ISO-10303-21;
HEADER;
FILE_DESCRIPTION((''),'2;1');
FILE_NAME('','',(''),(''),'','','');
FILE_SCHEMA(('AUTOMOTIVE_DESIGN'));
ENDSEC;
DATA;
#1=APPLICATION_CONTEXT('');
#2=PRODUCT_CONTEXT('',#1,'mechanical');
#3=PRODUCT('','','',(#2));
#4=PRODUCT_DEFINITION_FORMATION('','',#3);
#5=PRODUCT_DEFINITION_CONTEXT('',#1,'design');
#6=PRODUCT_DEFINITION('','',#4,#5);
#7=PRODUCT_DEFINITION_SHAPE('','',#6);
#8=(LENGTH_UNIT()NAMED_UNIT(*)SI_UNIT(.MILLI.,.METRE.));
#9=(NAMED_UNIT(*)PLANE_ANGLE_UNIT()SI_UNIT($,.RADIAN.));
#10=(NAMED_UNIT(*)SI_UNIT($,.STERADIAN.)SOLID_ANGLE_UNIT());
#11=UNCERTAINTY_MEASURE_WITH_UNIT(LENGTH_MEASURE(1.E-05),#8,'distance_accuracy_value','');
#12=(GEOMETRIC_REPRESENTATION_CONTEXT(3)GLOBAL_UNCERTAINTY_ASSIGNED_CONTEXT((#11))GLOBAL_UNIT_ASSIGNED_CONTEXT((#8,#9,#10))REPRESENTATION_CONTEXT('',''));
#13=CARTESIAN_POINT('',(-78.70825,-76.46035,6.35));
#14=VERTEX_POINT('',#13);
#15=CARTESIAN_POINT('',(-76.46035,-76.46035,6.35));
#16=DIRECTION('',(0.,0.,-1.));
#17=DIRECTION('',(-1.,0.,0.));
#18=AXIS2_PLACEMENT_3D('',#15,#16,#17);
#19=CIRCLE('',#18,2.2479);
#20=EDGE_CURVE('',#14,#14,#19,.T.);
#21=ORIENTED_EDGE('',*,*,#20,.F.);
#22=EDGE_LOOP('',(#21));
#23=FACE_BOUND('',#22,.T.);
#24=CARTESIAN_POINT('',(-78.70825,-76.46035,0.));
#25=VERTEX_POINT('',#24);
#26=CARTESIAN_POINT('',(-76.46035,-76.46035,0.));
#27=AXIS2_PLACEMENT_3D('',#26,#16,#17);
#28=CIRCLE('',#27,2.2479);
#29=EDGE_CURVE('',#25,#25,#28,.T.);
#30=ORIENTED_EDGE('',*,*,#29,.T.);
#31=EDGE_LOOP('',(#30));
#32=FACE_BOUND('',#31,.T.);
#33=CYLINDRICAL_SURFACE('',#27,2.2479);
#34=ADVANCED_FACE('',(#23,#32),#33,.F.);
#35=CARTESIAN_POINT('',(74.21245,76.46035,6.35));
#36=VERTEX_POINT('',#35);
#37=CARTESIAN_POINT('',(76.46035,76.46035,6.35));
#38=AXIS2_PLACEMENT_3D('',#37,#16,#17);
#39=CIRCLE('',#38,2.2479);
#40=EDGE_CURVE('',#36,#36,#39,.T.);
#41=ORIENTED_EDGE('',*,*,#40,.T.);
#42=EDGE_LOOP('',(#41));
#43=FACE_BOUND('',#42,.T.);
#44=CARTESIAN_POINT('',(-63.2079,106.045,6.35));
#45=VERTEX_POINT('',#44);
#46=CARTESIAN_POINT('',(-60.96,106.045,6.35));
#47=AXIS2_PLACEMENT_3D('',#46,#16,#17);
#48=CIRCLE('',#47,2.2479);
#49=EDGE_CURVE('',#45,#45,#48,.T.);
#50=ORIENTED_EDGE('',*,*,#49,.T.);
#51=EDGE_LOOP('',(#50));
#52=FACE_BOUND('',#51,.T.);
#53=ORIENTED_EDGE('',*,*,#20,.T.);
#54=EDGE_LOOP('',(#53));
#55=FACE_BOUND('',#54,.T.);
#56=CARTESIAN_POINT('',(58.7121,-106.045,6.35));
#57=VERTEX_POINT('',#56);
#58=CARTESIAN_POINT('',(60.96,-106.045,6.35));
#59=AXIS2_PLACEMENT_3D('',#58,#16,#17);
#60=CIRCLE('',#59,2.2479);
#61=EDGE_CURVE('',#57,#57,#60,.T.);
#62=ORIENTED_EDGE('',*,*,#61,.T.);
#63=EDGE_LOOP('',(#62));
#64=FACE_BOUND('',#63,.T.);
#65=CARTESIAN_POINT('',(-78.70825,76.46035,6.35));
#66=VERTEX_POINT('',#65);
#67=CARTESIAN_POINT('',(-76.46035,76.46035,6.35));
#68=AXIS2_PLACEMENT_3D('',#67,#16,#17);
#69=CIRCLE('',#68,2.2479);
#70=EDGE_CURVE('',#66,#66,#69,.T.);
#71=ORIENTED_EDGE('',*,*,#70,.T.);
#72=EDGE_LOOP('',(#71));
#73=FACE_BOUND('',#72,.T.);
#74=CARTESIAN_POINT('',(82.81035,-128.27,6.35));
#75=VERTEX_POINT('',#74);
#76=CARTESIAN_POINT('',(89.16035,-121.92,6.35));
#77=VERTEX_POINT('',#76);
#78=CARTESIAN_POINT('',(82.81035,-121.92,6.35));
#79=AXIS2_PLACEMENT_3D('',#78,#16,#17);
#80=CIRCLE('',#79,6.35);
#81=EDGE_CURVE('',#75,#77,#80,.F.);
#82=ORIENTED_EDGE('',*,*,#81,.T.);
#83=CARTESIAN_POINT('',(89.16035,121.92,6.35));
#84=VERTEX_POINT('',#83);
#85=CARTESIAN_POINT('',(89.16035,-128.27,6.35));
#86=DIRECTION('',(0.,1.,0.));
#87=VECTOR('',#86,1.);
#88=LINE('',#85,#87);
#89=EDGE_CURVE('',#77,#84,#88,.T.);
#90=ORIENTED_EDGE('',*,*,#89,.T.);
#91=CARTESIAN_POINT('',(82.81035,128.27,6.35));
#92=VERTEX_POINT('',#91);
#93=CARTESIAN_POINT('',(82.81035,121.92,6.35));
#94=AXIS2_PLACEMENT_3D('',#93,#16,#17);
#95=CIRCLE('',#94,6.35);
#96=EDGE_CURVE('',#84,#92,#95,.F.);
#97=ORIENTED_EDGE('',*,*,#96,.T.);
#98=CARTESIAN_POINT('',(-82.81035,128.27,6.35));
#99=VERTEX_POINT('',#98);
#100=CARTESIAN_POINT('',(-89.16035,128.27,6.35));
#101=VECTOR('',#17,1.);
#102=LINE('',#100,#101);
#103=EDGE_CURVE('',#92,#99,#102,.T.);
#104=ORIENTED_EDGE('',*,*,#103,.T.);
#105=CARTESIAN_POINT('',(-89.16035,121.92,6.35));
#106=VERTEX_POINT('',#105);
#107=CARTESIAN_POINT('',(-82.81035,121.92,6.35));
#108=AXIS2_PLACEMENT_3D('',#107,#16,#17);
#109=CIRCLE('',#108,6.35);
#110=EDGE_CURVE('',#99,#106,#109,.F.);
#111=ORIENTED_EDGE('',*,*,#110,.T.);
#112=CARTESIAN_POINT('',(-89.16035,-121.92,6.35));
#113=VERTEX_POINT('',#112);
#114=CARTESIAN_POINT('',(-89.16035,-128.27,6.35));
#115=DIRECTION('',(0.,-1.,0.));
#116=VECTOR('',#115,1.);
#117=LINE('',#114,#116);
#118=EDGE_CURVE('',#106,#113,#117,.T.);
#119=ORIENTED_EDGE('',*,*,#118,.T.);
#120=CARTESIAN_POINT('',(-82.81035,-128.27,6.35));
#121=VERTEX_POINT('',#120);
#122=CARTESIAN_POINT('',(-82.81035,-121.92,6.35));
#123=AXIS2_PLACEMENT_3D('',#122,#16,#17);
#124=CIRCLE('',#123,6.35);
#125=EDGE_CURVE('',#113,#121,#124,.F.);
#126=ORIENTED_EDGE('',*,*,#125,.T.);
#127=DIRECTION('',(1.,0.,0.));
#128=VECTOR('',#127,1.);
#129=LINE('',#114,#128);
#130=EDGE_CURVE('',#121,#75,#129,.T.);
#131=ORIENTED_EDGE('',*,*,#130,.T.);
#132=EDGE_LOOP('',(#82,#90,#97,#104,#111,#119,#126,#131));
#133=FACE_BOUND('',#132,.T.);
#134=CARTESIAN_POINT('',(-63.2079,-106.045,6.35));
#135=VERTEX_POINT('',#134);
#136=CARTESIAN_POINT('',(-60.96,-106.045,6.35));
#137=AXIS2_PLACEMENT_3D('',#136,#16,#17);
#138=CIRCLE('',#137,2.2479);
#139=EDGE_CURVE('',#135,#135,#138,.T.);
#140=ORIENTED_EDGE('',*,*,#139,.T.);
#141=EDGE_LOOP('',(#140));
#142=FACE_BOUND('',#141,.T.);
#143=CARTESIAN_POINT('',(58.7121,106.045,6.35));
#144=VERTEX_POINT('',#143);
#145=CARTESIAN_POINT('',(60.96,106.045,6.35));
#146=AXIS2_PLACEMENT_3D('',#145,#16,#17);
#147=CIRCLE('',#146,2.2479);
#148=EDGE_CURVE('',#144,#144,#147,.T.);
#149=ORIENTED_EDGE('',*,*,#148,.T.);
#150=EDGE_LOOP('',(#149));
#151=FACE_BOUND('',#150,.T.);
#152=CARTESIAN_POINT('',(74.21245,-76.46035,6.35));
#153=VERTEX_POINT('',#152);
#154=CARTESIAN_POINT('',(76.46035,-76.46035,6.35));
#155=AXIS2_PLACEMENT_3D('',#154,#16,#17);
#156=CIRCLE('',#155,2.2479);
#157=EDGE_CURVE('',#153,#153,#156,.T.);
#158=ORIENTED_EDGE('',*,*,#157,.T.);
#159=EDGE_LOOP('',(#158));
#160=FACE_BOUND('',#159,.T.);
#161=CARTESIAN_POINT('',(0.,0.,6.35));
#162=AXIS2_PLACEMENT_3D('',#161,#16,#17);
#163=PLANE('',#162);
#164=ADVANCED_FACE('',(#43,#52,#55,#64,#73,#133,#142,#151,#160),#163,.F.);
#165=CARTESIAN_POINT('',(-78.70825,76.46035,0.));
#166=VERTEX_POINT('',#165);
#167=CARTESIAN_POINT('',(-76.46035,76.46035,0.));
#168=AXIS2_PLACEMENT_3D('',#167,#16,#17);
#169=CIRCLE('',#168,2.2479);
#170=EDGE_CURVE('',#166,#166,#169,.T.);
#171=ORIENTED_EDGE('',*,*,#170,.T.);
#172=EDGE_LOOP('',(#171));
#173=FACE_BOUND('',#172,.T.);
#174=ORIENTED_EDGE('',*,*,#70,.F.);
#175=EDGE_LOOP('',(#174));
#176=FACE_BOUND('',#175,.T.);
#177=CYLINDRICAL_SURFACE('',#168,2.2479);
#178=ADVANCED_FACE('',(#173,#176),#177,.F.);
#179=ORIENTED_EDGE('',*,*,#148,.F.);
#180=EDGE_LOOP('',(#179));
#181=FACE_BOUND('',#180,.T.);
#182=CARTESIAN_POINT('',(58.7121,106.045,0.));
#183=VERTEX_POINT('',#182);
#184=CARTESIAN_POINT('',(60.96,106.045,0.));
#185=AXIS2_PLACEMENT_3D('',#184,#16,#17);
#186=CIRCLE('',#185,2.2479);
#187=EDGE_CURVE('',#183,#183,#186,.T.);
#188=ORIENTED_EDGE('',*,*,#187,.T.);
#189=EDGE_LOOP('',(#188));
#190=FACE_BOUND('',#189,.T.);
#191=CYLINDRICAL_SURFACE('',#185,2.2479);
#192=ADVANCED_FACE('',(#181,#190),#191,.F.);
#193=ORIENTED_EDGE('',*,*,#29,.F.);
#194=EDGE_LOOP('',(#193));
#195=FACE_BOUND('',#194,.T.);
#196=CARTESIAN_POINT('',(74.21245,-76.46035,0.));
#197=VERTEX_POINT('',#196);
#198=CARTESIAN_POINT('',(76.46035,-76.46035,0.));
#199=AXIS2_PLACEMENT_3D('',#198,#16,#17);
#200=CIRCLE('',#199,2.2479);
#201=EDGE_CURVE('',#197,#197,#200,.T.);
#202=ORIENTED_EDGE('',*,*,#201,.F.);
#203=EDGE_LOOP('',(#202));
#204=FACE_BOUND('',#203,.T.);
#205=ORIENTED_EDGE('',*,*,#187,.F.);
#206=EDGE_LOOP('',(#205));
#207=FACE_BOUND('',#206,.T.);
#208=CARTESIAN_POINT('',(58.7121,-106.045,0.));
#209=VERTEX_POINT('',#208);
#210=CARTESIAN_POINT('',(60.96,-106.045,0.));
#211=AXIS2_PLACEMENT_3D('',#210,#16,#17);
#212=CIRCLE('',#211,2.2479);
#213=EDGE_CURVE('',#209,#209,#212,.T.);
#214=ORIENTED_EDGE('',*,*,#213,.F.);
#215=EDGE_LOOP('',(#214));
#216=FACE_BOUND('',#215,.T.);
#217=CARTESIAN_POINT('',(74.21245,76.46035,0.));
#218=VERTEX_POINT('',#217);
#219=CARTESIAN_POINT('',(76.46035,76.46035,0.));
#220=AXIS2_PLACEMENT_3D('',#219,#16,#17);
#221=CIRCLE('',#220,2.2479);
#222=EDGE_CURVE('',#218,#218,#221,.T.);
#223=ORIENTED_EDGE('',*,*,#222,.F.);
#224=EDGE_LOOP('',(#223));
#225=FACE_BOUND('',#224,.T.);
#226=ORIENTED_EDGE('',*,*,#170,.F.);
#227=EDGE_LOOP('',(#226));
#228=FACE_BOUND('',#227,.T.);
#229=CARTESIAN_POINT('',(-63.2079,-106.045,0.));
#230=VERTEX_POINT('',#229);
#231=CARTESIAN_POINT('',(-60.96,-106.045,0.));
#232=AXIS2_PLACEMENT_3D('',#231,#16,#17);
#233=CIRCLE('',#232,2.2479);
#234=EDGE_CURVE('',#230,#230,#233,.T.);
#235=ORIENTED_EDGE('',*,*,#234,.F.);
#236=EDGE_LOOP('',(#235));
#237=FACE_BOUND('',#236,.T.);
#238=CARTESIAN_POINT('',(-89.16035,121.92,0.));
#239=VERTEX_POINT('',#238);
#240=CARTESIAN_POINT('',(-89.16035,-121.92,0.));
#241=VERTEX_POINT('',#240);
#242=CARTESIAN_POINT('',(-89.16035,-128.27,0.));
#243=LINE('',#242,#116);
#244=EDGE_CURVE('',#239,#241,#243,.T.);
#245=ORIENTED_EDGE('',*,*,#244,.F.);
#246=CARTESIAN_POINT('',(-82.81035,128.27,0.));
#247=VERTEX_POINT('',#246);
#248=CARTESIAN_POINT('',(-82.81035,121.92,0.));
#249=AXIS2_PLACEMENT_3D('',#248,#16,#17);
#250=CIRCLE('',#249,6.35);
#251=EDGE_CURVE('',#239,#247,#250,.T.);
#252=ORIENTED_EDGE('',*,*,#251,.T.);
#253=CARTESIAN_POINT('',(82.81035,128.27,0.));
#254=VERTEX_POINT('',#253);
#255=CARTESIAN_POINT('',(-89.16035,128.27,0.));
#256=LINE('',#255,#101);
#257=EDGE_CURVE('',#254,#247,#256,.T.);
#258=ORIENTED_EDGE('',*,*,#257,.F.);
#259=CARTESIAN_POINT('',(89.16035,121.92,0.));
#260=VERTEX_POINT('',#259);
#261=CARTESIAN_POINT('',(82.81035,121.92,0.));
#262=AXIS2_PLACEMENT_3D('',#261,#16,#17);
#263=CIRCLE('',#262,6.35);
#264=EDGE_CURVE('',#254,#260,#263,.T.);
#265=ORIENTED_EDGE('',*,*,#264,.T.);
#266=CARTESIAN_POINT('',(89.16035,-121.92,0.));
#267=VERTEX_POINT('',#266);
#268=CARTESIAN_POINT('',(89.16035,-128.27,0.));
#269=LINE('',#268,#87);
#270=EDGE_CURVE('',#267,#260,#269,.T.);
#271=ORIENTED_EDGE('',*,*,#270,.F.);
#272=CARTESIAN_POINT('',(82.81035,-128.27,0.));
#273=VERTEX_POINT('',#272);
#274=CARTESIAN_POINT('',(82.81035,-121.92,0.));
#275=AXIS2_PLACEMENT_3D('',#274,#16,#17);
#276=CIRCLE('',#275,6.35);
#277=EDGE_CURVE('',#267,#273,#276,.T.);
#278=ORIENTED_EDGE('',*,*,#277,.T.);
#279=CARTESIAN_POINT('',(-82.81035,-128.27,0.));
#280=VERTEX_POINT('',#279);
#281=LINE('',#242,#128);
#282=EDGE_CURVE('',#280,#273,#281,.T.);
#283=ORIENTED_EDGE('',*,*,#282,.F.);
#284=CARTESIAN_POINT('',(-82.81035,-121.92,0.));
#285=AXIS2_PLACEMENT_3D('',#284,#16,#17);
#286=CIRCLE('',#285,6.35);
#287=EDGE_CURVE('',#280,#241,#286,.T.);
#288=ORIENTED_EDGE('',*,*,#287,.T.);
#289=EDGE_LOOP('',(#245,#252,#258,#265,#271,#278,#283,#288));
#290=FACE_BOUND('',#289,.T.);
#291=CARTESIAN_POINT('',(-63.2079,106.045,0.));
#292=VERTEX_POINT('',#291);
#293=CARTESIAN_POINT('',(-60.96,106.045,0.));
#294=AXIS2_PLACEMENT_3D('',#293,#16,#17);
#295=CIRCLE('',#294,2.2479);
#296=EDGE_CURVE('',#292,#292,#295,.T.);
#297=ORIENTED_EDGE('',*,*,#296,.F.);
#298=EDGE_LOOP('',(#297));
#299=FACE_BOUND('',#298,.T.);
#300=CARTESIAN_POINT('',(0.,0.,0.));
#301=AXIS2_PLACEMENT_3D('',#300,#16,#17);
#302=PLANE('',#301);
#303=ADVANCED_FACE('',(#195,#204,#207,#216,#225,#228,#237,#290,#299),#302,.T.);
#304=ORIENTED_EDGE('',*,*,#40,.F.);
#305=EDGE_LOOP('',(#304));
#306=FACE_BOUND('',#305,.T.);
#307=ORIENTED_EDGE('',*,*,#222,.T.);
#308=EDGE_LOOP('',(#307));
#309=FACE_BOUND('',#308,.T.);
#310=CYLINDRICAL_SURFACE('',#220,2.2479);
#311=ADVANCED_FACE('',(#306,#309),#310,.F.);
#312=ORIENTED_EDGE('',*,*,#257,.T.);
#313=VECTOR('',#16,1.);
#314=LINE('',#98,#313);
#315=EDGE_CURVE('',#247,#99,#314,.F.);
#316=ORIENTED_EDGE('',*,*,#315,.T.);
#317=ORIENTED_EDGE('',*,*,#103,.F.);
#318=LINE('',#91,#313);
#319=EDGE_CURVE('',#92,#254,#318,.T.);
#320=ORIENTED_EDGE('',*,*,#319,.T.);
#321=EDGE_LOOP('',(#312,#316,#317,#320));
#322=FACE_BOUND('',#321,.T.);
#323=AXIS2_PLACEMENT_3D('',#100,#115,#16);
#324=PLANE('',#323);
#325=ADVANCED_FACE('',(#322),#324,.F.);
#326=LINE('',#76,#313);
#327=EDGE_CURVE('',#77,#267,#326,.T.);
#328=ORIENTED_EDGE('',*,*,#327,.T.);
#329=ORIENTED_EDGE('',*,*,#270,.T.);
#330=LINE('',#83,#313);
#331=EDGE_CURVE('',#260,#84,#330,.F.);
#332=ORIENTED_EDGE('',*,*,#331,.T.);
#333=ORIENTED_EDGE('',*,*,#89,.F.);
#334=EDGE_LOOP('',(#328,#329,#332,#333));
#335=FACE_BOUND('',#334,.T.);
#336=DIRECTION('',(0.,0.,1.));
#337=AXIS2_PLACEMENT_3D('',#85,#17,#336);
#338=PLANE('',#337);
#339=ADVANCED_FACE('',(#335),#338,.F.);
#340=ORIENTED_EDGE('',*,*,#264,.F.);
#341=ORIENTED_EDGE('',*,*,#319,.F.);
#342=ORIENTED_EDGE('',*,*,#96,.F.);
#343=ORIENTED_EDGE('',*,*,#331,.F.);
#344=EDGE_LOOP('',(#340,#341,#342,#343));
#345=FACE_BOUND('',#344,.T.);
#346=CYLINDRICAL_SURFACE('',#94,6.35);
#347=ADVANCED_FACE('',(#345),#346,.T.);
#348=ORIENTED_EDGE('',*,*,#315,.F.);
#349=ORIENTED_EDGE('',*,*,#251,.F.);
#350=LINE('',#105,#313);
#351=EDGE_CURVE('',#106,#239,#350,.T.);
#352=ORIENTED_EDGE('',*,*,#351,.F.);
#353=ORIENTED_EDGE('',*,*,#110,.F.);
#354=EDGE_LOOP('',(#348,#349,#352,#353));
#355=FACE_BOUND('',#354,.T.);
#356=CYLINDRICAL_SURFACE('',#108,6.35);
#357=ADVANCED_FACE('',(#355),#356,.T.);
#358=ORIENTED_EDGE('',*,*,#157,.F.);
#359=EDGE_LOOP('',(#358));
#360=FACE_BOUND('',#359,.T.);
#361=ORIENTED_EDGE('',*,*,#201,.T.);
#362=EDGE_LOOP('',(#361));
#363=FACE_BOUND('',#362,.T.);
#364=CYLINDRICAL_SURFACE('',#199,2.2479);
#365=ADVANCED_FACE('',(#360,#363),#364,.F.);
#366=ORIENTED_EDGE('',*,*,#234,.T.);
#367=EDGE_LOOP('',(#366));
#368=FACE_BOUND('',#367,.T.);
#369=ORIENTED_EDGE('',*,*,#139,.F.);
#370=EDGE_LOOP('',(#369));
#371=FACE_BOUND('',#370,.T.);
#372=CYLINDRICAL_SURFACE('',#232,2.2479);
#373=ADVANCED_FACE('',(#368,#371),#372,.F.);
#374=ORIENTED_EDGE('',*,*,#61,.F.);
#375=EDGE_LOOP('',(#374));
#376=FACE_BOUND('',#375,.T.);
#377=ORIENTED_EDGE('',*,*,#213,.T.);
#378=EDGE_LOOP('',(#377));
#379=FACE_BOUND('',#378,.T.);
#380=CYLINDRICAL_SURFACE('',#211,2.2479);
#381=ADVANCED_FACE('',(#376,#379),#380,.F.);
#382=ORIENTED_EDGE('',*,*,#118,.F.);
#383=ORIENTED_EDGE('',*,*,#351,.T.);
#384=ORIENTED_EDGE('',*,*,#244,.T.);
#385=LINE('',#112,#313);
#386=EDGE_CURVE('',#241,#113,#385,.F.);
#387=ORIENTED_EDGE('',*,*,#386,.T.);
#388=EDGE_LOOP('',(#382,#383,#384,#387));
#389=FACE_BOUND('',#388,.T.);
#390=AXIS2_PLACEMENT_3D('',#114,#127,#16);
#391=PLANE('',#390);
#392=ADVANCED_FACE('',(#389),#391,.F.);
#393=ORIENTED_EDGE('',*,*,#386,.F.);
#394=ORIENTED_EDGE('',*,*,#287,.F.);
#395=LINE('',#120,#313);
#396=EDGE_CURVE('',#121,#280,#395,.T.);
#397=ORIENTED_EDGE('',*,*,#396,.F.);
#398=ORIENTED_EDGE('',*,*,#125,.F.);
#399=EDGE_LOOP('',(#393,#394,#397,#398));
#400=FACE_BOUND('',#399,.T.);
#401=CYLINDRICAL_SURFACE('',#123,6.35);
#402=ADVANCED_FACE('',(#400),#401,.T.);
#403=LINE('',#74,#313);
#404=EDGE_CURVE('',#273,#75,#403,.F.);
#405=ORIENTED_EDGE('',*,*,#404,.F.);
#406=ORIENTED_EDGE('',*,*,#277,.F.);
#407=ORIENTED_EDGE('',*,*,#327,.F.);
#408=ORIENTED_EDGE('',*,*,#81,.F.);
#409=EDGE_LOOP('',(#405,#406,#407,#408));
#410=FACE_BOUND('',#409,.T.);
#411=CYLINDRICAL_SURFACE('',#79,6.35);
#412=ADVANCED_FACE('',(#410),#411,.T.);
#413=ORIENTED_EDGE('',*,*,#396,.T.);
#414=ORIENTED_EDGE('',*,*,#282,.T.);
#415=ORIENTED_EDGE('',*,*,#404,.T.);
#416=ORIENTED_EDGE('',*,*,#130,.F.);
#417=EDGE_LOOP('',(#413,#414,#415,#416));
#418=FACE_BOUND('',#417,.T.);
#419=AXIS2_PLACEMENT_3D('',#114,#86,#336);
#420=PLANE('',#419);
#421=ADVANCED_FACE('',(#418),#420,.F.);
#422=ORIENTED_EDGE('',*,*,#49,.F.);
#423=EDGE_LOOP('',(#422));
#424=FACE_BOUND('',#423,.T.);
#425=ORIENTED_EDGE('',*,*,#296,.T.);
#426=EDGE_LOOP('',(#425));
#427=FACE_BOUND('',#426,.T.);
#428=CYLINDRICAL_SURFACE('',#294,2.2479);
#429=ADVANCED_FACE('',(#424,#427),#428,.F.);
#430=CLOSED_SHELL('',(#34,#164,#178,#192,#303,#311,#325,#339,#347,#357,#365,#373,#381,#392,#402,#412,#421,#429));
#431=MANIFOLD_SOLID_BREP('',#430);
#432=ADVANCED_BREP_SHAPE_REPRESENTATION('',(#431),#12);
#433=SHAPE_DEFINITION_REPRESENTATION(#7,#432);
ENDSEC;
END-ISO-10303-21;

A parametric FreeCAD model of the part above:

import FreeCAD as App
import Part
import Sketcher
from FreeCAD import Vector
Q = App.Units.Quantity


def edges_at(feature, points):
    """Names of the edges that pass closest to the given points."""
    edges = feature.Shape.Edges
    near = lambda p: min(range(len(edges)), key=lambda i: edges[i].distToShape(Part.Vertex(*p))[0])
    return sorted({f"Edge{near(p) + 1}" for p in points})


def add_polygon(sketch, points):
    """Adds a closed chain of lines whose ends are joined by coincident constraints."""
    first, n = sketch.GeometryCount, len(points)
    for a, b in zip(points, points[1:] + points[:1]):
        sketch.addGeometry(Part.LineSegment(App.Vector(*a, 0), App.Vector(*b, 0)), False)
    for i in range(n):
        sketch.addConstraint(Sketcher.Constraint("Coincident", first + i, 2, first + (i + 1) % n, 1))

doc = App.newDocument("Part")
body = doc.addObject("PartDesign::Body", "Body")

# Sketch on XY plane
sketch1 = body.newObject("Sketcher::SketchObject", "Sketch")
sketch1.AttachmentSupport = (doc.getObject("XY_Plane"), [""])
sketch1.MapMode = "FlatFace"
add_polygon(sketch1, [(-89, 128), (-89, -128), (89, -128), (89, 128)])  # lines 0-3
sketch1.addConstraint(Sketcher.Constraint("Vertical", 0))
sketch1.addConstraint(Sketcher.Constraint("Horizontal", 1))
sketch1.addConstraint(Sketcher.Constraint("Vertical", 2))
sketch1.addConstraint(Sketcher.Constraint("Horizontal", 3))
sketch1.addConstraint(Sketcher.Constraint("Symmetric", 0, 2, 2, 2, -1, 1))
sketch1.addConstraint(Sketcher.Constraint("DistanceY", 0, 2, 0, 1, Q("10.1 in")))
sketch1.addConstraint(Sketcher.Constraint("DistanceX", 1, 1, 1, 2, Q("7.0205 in")))
pad1 = body.newObject("PartDesign::Pad", "Pad")
pad1.Profile = sketch1
pad1.Length = Q("0.25 in")
doc.recompute()

fillet = body.newObject("PartDesign::Fillet", "Fillet")
fillet.Base = (pad1, edges_at(pad1, [
    (89.16, -128.27, 3.175),
    (-89.16, -128.27, 3.175),
    (-89.16, 128.27, 3.175),
    (89.16, 128.27, 3.175),
]))
fillet.Radius = Q("0.25 in")

# Sketch on XY plane
sketch2 = body.newObject("Sketcher::SketchObject", "Sketch001")
sketch2.AttachmentSupport = (doc.getObject("XY_Plane"), [""])
sketch2.MapMode = "FlatFace"
sketch2.addGeometry(Part.Circle(Vector(61, 106, 0), Vector(0, 0, 1), 2.2), False)
sketch2.addGeometry(Part.Circle(Vector(-61, 106, 0), Vector(0, 0, 1), 2.2), False)
sketch2.addGeometry(Part.Circle(Vector(61, -106, 0), Vector(0, 0, 1), 2.2), False)
sketch2.addGeometry(Part.Circle(Vector(-61, -106, 0), Vector(0, 0, 1), 2.2), False)
sketch2.addGeometry(Part.Circle(Vector(76.5, -76.5, 0), Vector(0, 0, 1), 2.2), False)
sketch2.addGeometry(Part.Circle(Vector(76.5, 76.5, 0), Vector(0, 0, 1), 2.2), False)
sketch2.addGeometry(Part.Circle(Vector(-76.5, 76.5, 0), Vector(0, 0, 1), 2.2), False)
sketch2.addGeometry(Part.Circle(Vector(-76.5, -76.5, 0), Vector(0, 0, 1), 2.2), False)
sketch2.addConstraint(Sketcher.Constraint("Equal", 0, 1))
sketch2.addConstraint(Sketcher.Constraint("Equal", 1, 2))
sketch2.addConstraint(Sketcher.Constraint("Equal", 2, 3))
sketch2.addConstraint(Sketcher.Constraint("Equal", 3, 4))
sketch2.addConstraint(Sketcher.Constraint("Equal", 4, 5))
sketch2.addConstraint(Sketcher.Constraint("Equal", 5, 6))
sketch2.addConstraint(Sketcher.Constraint("Equal", 6, 7))
sketch2.addConstraint(Sketcher.Constraint("Symmetric", 1, 3, 2, 3, -1, 1))
sketch2.addConstraint(Sketcher.Constraint("Symmetric", 0, 3, 3, 3, -1, 1))
sketch2.addConstraint(Sketcher.Constraint("Symmetric", 4, 3, 6, 3, -1, 1))
sketch2.addConstraint(Sketcher.Constraint("Symmetric", 5, 3, 7, 3, -1, 1))
sketch2.addConstraint(Sketcher.Constraint("Symmetric", 0, 3, 1, 3, -2))
sketch2.addConstraint(Sketcher.Constraint("Symmetric", 5, 3, 6, 3, -2))
sketch2.addConstraint(Sketcher.Constraint("Diameter", 0, Q("0.177 in")))
sketch2.addConstraint(Sketcher.Constraint("DistanceX", -1, 1, 0, 3, Q("2.4 in")))
sketch2.addConstraint(Sketcher.Constraint("DistanceY", 2, 3, 0, 3, Q("8.35 in")))
sketch2.addConstraint(Sketcher.Constraint("DistanceY", 4, 3, 5, 3, Q("6.0205 in")))
sketch2.addConstraint(Sketcher.Constraint("DistanceX", 6, 3, 5, 3, Q("6.0205 in")))
doc.recompute()
hole = body.newObject("PartDesign::Hole", "Hole")
hole.Profile = sketch2
hole.ThreadType = "None"
hole.Diameter = Q("0.177 in")
hole.DepthType = "ThroughAll"
hole.Reversed = True

doc.recompute()
